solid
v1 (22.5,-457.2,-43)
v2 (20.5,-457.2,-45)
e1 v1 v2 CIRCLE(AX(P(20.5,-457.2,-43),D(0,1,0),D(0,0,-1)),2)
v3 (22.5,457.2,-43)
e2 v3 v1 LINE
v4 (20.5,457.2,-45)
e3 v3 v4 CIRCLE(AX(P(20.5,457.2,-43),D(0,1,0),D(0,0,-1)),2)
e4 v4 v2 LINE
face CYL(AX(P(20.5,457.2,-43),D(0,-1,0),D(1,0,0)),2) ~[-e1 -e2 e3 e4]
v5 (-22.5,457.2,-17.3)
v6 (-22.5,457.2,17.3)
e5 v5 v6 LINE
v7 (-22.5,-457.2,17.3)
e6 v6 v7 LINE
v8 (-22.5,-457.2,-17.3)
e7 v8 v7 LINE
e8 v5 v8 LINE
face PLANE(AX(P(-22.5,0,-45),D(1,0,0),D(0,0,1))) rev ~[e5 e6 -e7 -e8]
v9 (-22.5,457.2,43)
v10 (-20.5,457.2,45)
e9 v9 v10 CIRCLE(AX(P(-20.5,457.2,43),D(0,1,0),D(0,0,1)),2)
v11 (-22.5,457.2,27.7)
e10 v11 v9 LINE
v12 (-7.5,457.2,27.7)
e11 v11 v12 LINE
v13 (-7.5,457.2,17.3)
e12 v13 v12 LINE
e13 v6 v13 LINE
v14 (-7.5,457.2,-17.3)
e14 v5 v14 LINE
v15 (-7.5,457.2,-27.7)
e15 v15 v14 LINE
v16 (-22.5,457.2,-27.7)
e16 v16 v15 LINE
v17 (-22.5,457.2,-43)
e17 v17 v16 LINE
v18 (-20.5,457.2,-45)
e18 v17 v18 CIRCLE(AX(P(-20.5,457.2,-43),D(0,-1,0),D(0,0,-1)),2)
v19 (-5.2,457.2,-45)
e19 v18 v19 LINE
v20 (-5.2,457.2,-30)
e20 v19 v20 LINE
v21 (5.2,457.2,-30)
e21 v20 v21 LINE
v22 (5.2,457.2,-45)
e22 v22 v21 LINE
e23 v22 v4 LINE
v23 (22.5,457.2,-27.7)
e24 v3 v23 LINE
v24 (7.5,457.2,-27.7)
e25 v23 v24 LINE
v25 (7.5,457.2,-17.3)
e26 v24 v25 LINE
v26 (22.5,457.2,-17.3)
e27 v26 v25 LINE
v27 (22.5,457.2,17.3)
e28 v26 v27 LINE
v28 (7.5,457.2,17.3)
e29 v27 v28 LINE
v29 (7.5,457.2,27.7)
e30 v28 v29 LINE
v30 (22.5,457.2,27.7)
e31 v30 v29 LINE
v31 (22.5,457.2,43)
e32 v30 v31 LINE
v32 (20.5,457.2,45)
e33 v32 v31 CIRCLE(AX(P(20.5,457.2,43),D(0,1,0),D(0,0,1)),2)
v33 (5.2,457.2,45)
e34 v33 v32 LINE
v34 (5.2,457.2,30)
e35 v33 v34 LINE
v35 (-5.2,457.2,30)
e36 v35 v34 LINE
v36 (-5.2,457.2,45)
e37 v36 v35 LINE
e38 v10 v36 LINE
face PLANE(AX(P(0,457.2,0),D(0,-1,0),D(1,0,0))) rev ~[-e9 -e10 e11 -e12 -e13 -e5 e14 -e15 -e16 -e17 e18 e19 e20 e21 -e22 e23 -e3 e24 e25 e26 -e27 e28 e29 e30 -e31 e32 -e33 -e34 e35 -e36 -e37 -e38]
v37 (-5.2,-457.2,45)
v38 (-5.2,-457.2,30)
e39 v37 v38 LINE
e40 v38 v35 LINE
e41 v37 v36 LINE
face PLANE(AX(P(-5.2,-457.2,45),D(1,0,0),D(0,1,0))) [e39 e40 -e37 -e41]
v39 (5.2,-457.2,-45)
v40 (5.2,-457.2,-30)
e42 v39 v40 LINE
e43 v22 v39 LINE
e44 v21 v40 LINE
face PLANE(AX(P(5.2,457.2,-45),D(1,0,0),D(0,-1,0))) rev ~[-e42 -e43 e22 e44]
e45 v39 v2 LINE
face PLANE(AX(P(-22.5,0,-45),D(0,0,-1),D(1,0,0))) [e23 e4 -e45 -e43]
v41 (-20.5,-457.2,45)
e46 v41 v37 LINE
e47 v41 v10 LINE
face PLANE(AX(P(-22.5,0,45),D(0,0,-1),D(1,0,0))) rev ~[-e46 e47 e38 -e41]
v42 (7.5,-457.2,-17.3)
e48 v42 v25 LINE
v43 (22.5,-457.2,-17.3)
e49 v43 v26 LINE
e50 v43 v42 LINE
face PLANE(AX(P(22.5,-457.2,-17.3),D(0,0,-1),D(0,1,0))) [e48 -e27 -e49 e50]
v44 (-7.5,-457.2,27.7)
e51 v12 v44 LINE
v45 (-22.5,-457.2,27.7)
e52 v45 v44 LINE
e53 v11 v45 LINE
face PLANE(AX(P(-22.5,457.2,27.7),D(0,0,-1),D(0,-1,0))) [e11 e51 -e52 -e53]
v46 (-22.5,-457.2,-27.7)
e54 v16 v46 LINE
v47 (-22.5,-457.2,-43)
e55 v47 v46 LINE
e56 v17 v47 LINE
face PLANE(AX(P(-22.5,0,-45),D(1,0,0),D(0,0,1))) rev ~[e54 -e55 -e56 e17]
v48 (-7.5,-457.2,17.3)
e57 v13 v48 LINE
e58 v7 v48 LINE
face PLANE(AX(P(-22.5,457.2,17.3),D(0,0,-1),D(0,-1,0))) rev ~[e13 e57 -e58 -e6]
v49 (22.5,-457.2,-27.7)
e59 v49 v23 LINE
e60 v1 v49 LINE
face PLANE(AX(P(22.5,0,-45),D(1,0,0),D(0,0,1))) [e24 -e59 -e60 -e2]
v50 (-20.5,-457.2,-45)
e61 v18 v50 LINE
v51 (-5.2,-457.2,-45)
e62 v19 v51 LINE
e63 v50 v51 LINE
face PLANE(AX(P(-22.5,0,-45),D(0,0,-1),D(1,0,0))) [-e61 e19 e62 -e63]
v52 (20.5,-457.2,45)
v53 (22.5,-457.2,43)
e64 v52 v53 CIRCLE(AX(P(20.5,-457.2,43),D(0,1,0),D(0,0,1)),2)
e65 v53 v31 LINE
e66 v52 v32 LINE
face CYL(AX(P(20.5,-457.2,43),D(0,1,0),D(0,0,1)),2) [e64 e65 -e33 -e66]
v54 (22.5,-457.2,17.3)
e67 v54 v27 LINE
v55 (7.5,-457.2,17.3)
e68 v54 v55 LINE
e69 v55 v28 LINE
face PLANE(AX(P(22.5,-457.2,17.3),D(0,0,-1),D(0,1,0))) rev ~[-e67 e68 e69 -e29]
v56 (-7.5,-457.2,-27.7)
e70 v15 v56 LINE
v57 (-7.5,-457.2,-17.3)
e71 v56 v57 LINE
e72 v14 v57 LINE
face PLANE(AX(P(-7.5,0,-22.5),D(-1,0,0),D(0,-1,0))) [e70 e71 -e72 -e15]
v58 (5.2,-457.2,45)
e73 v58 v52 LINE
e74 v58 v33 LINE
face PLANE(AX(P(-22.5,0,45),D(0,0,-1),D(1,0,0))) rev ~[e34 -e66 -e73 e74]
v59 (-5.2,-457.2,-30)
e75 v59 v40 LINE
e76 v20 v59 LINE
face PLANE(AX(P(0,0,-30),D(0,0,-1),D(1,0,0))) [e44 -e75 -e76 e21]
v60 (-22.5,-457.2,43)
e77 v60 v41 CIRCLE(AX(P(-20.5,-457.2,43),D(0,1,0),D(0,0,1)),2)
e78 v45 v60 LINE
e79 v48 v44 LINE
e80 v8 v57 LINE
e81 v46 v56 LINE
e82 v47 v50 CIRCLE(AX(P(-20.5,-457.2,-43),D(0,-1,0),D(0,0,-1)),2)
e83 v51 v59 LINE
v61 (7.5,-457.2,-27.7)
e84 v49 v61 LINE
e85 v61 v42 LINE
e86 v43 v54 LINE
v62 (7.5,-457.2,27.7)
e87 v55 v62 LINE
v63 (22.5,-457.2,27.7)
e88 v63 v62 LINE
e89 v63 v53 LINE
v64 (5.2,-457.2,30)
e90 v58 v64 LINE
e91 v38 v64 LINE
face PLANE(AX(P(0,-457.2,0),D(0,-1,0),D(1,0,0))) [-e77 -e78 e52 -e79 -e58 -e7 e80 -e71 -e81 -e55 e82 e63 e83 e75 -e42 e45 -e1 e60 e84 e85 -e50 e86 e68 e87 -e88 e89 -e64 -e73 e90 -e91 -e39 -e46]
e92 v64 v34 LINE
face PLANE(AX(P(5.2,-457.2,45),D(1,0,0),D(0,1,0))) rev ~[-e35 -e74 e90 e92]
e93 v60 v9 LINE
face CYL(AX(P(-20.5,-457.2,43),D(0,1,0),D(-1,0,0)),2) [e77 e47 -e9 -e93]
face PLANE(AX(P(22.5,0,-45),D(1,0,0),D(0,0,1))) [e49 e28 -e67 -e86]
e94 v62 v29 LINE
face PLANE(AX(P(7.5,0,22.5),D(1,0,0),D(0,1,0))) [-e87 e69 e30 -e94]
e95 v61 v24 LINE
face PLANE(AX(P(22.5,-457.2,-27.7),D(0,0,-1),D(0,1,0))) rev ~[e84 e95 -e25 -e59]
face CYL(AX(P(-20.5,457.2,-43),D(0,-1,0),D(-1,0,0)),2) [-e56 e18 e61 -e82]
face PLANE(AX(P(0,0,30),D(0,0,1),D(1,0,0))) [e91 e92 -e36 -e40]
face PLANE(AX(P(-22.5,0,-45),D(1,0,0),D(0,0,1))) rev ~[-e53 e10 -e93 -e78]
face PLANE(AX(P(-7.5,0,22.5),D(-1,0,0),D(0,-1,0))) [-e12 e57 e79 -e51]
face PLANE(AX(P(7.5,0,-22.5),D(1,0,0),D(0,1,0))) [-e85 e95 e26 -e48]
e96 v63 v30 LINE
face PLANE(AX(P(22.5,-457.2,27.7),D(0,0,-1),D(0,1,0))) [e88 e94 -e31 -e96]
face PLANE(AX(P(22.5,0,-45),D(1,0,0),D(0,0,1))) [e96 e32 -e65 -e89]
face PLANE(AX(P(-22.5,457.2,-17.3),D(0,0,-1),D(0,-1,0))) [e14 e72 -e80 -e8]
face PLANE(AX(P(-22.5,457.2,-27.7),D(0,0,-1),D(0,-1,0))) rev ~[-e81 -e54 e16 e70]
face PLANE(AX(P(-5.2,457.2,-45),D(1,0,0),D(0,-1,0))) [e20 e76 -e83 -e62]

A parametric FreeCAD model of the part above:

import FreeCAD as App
import Part
import Sketcher
from FreeCAD import Vector
Q = App.Units.Quantity


def edges_at(feature, points):
    """Names of the edges that pass closest to the given points."""
    edges = feature.Shape.Edges
    near = lambda p: min(range(len(edges)), key=lambda i: edges[i].distToShape(Part.Vertex(*p))[0])
    return sorted({f"Edge{near(p) + 1}" for p in points})


def add_polygon(sketch, points):
    """Adds a closed chain of lines whose ends are joined by coincident constraints."""
    first, n = sketch.GeometryCount, len(points)
    for a, b in zip(points, points[1:] + points[:1]):
        sketch.addGeometry(Part.LineSegment(App.Vector(*a, 0), App.Vector(*b, 0)), False)
    for i in range(n):
        sketch.addConstraint(Sketcher.Constraint("Coincident", first + i, 2, first + (i + 1) % n, 1))

doc = App.newDocument("Part")
body = doc.addObject("PartDesign::Body", "Body")

# Sketch on XZ plane
sketch1 = body.newObject("Sketcher::SketchObject", "Sketch")
sketch1.AttachmentSupport = (doc.getObject("XZ_Plane"), [""])
sketch1.MapMode = "FlatFace"
add_polygon(sketch1, [(-22.5, 45), (-22.5, -45), (22.5, -45), (22.5, 45)])  # lines 0-3
sketch1.addConstraint([
    Sketcher.Constraint("Vertical", 0),
    Sketcher.Constraint("Horizontal", 1),
    Sketcher.Constraint("Vertical", 2),
    Sketcher.Constraint("Horizontal", 3),
    Sketcher.Constraint("Symmetric", 0, 2, 2, 2, -1, 1),
    Sketcher.Constraint("DistanceX", 1, 1, 1, 2, Q("45 mm")),
    Sketcher.Constraint("DistanceY", 0, 2, 0, 1, Q("90 mm")),
])
pad1 = body.newObject("PartDesign::Pad", "Pad")
pad1.Profile = sketch1
pad1.Length = 914.4
pad1.Midplane = True

# Sketch on YZ plane
sketch2 = body.newObject("Sketcher::SketchObject", "Sketch001")
sketch2.AttachmentSupport = (doc.getObject("YZ_Plane"), [""])
sketch2.MapMode = "FlatFace"
sketch2.AttachmentOffset = App.Placement(Vector(0, 0, 22.5), App.Rotation())
add_polygon(sketch2, [(-457.2, 27.7), (-457.2, 17.3), (457.2, 17.3), (457.2, 27.7)])  # lines 0-3
add_polygon(sketch2, [(-457.2, -17.3), (-457.2, -27.7), (457.2, -27.7), (457.2, -17.3)])  # lines 4-7
sketch2.addConstraint([
    Sketcher.Constraint("Vertical", 0),
    Sketcher.Constraint("Horizontal", 1),
    Sketcher.Constraint("Vertical", 2),
    Sketcher.Constraint("Horizontal", 3),
    Sketcher.Constraint("Vertical", 4),
    Sketcher.Constraint("Horizontal", 5),
    Sketcher.Constraint("Vertical", 6),
    Sketcher.Constraint("Horizontal", 7),
    Sketcher.Constraint("Symmetric", 2, 2, 4, 2, -1, 1),
    Sketcher.Constraint("Symmetric", 0, 2, 6, 2, -1, 1),
    Sketcher.Constraint("Vertical", 3, 2, 4, 2),
    Sketcher.Constraint("DistanceX", 1, 1, 1, 2, Q("914.4 mm")),
    Sketcher.Constraint("DistanceY", 0, 2, 0, 1, Q("10.4 mm")),
    Sketcher.Constraint("DistanceY", 4, 2, 0, 2, Q("45 mm")),
])
pocket1 = body.newObject("PartDesign::Pocket", "Pocket")
pocket1.Profile = sketch2
pocket1.Length = 15

# Sketch on YZ plane
sketch3 = body.newObject("Sketcher::SketchObject", "Sketch002")
sketch3.AttachmentSupport = (doc.getObject("YZ_Plane"), [""])
sketch3.MapMode = "FlatFace"
sketch3.AttachmentOffset = App.Placement(Vector(0, 0, -22.5), App.Rotation())
add_polygon(sketch3, [(457.2, 27.7), (457.2, 17.3), (-457.2, 17.3), (-457.2, 27.7)])  # lines 0-3
add_polygon(sketch3, [(457.2, -17.3), (457.2, -27.7), (-457.2, -27.7), (-457.2, -17.3)])  # lines 4-7
sketch3.addConstraint([
    Sketcher.Constraint("Vertical", 0),
    Sketcher.Constraint("Horizontal", 1),
    Sketcher.Constraint("Vertical", 2),
    Sketcher.Constraint("Horizontal", 3),
    Sketcher.Constraint("Vertical", 4),
    Sketcher.Constraint("Horizontal", 5),
    Sketcher.Constraint("Vertical", 6),
    Sketcher.Constraint("Horizontal", 7),
    Sketcher.Constraint("Symmetric", 2, 2, 4, 2, -1, 1),
    Sketcher.Constraint("Symmetric", 0, 2, 6, 2, -1, 1),
    Sketcher.Constraint("Vertical", 3, 2, 4, 2),
    Sketcher.Constraint("DistanceX", 1, 2, 1, 1, Q("914.4 mm")),
    Sketcher.Constraint("DistanceY", 0, 2, 0, 1, Q("10.4 mm")),
    Sketcher.Constraint("DistanceY", 4, 2, 0, 2, Q("45 mm")),
])
pocket2 = body.newObject("PartDesign::Pocket", "Pocket001")
pocket2.Profile = sketch3
pocket2.Length = 15
pocket2.Reversed = True

# Sketch on XY plane
sketch4 = body.newObject("Sketcher::SketchObject", "Sketch003")
sketch4.AttachmentSupport = (doc.getObject("XY_Plane"), [""])
sketch4.MapMode = "FlatFace"
sketch4.AttachmentOffset = App.Placement(Vector(0, 0, 45), App.Rotation())
add_polygon(sketch4, [(-5.2, 457.2), (-5.2, -457.2), (5.2, -457.2), (5.2, 457.2)])  # lines 0-3
sketch4.addConstraint([
    Sketcher.Constraint("Vertical", 0),
    Sketcher.Constraint("Horizontal", 1),
    Sketcher.Constraint("Vertical", 2),
    Sketcher.Constraint("Horizontal", 3),
    Sketcher.Constraint("Symmetric", 0, 2, 2, 2, -1, 1),
    Sketcher.Constraint("DistanceX", 1, 1, 1, 2, Q("10.4 mm")),
    Sketcher.Constraint("DistanceY", 0, 2, 0, 1, Q("914.4 mm")),
])
pocket3 = body.newObject("PartDesign::Pocket", "Pocket002")
pocket3.Profile = sketch4
pocket3.Length = 15

# Sketch on XY plane
sketch5 = body.newObject("Sketcher::SketchObject", "Sketch004")
sketch5.AttachmentSupport = (doc.getObject("XY_Plane"), [""])
sketch5.MapMode = "FlatFace"
sketch5.AttachmentOffset = App.Placement(Vector(0, 0, -45), App.Rotation())
add_polygon(sketch5, [(-5.2, -457.2), (-5.2, 457.2), (5.2, 457.2), (5.2, -457.2)])  # lines 0-3
sketch5.addConstraint([
    Sketcher.Constraint("Vertical", 0),
    Sketcher.Constraint("Horizontal", 1),
    Sketcher.Constraint("Vertical", 2),
    Sketcher.Constraint("Horizontal", 3),
    Sketcher.Constraint("Symmetric", 0, 2, 2, 2, -1, 1),
    Sketcher.Constraint("DistanceX", 1, 1, 1, 2, Q("10.4 mm")),
    Sketcher.Constraint("DistanceY", 0, 1, 0, 2, Q("914.4 mm")),
])
pocket4 = body.newObject("PartDesign::Pocket", "Pocket003")
pocket4.Profile = sketch5
pocket4.Length = 15
pocket4.Reversed = True
doc.recompute()

fillet = body.newObject("PartDesign::Fillet", "Fillet")
fillet.Base = (pocket4, edges_at(pocket4, [
    (22.5, 0, 45),
    (-22.5, 0, 45),
    (22.5, 0, -45),
    (-22.5, 0, -45),
]))
fillet.Radius = 2

doc.recompute()
